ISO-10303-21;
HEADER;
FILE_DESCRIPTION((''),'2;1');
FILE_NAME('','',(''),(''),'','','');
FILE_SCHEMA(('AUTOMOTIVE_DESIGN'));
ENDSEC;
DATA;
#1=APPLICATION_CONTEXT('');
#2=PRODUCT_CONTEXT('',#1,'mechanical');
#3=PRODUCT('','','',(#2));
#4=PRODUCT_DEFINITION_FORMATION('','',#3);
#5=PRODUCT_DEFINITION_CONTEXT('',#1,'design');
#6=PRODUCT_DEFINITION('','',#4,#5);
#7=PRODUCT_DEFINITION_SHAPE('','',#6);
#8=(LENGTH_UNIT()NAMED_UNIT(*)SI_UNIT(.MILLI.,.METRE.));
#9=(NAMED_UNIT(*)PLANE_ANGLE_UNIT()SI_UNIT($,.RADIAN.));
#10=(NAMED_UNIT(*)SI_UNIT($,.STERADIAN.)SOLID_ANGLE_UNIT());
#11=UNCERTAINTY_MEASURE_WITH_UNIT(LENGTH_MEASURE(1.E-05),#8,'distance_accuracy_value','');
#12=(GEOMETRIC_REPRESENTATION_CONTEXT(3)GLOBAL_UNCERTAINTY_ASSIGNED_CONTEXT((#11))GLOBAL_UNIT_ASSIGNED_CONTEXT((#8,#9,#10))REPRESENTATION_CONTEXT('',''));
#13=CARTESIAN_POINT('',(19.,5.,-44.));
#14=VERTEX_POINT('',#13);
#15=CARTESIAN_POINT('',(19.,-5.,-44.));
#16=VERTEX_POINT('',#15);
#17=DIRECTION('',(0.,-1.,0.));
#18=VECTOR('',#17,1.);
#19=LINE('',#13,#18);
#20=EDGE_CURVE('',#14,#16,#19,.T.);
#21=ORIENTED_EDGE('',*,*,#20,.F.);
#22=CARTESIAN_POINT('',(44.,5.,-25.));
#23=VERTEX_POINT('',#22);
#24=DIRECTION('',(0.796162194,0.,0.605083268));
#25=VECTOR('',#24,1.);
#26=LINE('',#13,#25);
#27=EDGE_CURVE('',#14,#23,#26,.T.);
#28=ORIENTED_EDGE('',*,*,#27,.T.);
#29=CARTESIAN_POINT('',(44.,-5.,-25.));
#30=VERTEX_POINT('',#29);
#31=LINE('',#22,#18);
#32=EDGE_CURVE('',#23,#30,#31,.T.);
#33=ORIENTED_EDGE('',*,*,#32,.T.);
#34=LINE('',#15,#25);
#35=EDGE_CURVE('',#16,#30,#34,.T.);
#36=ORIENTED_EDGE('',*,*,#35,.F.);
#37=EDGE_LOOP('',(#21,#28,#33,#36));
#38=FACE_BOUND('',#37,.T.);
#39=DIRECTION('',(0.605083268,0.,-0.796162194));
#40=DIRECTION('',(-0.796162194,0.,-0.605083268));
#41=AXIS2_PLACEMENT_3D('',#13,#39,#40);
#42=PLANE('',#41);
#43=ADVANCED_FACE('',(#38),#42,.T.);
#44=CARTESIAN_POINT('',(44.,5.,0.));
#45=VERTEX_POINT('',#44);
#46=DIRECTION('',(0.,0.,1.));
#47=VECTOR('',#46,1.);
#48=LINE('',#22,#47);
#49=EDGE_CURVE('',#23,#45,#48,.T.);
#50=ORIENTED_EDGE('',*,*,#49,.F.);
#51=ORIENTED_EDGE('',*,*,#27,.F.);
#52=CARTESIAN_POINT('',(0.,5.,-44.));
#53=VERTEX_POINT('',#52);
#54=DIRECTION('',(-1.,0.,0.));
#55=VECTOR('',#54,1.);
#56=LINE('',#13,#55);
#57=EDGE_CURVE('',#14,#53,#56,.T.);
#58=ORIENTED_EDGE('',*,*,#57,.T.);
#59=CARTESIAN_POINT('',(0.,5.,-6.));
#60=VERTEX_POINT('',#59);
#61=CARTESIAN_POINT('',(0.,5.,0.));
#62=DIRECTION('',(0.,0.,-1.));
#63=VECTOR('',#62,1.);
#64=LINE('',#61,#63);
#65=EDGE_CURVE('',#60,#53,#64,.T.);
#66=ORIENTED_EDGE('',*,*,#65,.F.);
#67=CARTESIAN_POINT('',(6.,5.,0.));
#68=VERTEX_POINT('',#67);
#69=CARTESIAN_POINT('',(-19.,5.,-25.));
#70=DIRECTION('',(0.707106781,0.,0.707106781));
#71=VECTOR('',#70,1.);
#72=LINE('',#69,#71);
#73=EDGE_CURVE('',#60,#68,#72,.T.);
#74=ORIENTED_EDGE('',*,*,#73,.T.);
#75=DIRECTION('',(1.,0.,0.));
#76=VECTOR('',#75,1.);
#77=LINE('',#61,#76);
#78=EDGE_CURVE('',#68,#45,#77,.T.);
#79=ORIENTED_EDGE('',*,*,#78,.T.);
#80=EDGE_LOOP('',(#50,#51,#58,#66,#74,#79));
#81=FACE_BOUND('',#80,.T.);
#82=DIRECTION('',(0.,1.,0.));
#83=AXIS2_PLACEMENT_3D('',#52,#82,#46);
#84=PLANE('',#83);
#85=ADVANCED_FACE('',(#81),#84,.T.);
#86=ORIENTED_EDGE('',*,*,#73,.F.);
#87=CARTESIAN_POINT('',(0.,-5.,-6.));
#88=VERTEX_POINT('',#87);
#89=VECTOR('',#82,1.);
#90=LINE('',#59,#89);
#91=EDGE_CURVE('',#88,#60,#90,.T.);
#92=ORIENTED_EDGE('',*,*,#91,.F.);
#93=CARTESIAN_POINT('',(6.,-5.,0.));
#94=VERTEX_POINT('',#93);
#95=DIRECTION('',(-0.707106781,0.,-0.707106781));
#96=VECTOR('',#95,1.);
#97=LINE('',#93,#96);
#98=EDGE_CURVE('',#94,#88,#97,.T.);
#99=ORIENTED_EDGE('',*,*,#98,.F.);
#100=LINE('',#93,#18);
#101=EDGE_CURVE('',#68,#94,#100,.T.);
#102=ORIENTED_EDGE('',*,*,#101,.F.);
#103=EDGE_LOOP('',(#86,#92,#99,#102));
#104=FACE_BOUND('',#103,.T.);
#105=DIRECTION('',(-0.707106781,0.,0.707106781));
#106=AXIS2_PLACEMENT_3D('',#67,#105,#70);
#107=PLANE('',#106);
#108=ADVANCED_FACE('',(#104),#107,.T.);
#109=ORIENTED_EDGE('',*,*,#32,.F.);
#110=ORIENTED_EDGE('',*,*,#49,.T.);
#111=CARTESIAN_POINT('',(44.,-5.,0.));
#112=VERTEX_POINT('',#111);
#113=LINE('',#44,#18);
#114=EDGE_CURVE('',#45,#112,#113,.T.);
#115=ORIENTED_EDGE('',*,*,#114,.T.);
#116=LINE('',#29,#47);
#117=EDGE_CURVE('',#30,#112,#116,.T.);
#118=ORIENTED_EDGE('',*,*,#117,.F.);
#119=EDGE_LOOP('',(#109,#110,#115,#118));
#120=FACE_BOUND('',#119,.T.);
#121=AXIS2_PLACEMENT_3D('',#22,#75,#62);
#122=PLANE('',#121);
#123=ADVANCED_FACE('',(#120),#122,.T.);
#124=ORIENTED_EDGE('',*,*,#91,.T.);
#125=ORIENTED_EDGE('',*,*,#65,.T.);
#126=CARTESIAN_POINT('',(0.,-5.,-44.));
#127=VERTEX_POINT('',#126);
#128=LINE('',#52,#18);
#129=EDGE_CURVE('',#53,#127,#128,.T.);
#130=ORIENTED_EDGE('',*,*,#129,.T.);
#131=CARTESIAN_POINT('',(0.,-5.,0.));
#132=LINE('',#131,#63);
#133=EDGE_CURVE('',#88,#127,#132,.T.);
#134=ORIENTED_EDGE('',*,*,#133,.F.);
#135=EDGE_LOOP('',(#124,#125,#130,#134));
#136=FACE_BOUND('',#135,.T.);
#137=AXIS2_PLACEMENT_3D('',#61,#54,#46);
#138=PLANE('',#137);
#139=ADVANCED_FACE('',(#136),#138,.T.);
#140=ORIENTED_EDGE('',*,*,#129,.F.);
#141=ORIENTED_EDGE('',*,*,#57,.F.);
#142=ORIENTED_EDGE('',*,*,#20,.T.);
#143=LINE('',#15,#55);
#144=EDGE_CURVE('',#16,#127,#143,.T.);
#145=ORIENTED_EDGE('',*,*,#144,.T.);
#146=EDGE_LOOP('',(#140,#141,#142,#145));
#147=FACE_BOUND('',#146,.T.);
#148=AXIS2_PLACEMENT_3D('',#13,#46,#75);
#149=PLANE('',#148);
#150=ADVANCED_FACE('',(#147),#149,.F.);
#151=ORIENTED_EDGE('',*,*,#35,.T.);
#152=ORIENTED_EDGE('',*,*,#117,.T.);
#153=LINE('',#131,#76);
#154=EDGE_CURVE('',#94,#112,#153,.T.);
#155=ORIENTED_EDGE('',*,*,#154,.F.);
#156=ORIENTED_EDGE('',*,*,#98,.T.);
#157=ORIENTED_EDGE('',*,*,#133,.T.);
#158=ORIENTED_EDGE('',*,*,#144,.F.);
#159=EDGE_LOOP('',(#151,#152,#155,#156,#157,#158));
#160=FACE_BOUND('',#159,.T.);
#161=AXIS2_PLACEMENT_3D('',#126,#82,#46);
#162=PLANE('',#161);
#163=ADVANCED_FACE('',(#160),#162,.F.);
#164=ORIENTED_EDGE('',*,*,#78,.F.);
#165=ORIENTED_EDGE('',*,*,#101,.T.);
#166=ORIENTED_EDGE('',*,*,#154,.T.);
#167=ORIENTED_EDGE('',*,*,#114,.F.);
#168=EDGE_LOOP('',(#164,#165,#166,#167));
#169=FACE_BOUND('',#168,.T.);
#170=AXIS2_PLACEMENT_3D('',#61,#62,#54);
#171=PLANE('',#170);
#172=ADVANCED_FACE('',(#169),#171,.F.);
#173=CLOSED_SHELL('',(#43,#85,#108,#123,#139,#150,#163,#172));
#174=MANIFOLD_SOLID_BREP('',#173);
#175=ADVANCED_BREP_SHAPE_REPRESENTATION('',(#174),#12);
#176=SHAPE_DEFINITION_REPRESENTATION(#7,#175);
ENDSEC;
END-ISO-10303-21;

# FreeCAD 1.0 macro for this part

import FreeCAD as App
import Part
import Sketcher
from FreeCAD import Vector


def edges_at(feature, points):
    """Names of the edges that pass closest to the given points."""
    edges = feature.Shape.Edges
    near = lambda p: min(range(len(edges)), key=lambda i: edges[i].distToShape(Part.Vertex(*p))[0])
    return sorted({f"Edge{near(p) + 1}" for p in points})

doc = App.newDocument("Part")
body = doc.addObject("PartDesign::Body", "Body")

sketch1 = body.newObject("Sketcher::SketchObject", "Sketch")
sketch1.AttachmentSupport = (doc.getObject("XZ_Plane"), [""])
sketch1.MapMode = "FlatFace"
sketch1.addGeometry(Part.LineSegment(Vector(0, 0, 0), Vector(44, 0, 0)), False)
sketch1.addGeometry(Part.LineSegment(Vector(44, 0, 0), Vector(44, -25, 0)), False)
sketch1.addGeometry(Part.LineSegment(Vector(44, -25, 0), Vector(19, -44, 0)), False)
sketch1.addGeometry(Part.LineSegment(Vector(19, -44, 0), Vector(0, -44, 0)), False)
sketch1.addGeometry(Part.LineSegment(Vector(0, -44, 0), Vector(0, 0, 0)), False)
sketch1.addConstraint(Sketcher.Constraint("Coincident", 0, 2, 1, 1))
sketch1.addConstraint(Sketcher.Constraint("Coincident", 1, 2, 2, 1))
sketch1.addConstraint(Sketcher.Constraint("Coincident", 2, 2, 3, 1))
sketch1.addConstraint(Sketcher.Constraint("Coincident", 3, 2, 4, 1))
sketch1.addConstraint(Sketcher.Constraint("Coincident", 4, 2, 0, 1))
sketch1.addConstraint(Sketcher.Constraint("Horizontal", 0))
sketch1.addConstraint(Sketcher.Constraint("Vertical", 1))
sketch1.addConstraint(Sketcher.Constraint("Horizontal", 3))
sketch1.addConstraint(Sketcher.Constraint("Vertical", 4))
sketch1.addConstraint(Sketcher.Constraint("Coincident", 4, 2, -1, 1))
sketch1.addConstraint(Sketcher.Constraint("Equal", 0, 4))
sketch1.addConstraint(Sketcher.Constraint("DistanceX", 0, 1, 0, 2, 44.0))
sketch1.addConstraint(Sketcher.Constraint("DistanceX", 3, 2, 3, 1, 19.0))
sketch1.addConstraint(Sketcher.Constraint("DistanceY", 1, 2, 1, 1, 25.0))
pad1 = body.newObject("PartDesign::Pad", "Pad")
pad1.Profile = sketch1
pad1.Length = 10
pad1.Midplane = True
doc.recompute()

chamfer = body.newObject("PartDesign::Chamfer", "Chamfer")
chamfer.Base = (pad1, edges_at(pad1, [(0, 0, 0)]))
chamfer.Size = 6

doc.recompute()
